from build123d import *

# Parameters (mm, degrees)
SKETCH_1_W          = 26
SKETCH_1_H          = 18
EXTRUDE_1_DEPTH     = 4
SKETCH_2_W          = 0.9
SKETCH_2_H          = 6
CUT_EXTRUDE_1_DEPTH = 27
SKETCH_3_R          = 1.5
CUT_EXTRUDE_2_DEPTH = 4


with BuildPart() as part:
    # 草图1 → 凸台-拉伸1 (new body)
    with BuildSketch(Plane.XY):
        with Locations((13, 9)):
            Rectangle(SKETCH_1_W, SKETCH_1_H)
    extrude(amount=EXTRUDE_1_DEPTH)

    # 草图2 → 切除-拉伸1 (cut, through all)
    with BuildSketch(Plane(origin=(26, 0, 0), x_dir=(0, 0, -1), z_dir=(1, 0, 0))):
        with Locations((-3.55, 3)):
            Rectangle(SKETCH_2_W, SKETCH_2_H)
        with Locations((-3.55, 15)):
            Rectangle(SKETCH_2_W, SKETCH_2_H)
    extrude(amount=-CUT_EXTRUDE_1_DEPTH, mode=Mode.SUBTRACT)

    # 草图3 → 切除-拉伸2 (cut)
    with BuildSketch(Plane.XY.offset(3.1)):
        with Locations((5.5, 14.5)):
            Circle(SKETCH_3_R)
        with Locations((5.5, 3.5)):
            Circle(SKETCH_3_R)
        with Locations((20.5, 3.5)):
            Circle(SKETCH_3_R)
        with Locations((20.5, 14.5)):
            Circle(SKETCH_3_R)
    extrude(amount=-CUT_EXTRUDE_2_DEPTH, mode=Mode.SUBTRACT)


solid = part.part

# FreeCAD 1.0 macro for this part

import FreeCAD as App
import Part
import Sketcher


def add_polygon(sketch, points):
    """Adds a closed chain of lines whose ends are joined by coincident constraints."""
    first, n = sketch.GeometryCount, len(points)
    for a, b in zip(points, points[1:] + points[:1]):
        sketch.addGeometry(Part.LineSegment(App.Vector(*a, 0), App.Vector(*b, 0)), False)
    for i in range(n):
        sketch.addConstraint(Sketcher.Constraint("Coincident", first + i, 2, first + (i + 1) % n, 1))

doc = App.newDocument("Part")
body = doc.addObject("PartDesign::Body", "Body")

sketch1 = body.newObject("Sketcher::SketchObject", "Sketch")
sketch1.AttachmentSupport = (doc.getObject("XY_Plane"), [""])
sketch1.MapMode = "FlatFace"
add_polygon(sketch1, [(0, 18), (0, 0), (26, 0), (26, 18)])
sketch1.addConstraint([
    Sketcher.Constraint("Vertical", 0),
    Sketcher.Constraint("Horizontal", 1),
    Sketcher.Constraint("Vertical", 2),
    Sketcher.Constraint("Horizontal", 3),
    Sketcher.Constraint("Coincident", 0, 2, -1, 1),
    Sketcher.Constraint("DistanceX", 1, 1, 1, 2, 26.0),
    Sketcher.Constraint("DistanceY", 0, 2, 0, 1, 18.0),
])
pad1 = body.newObject("PartDesign::Pad", "Pad")
pad1.Profile = sketch1
pad1.Length = 4

sketch2 = body.newObject("Sketcher::SketchObject", "Sketch001")
sketch2.AttachmentSupport = (doc.getObject("YZ_Plane"), [""])
sketch2.MapMode = "FlatFace"
sketch2.AttachmentOffset = App.Placement(App.Vector(0, 0, 26), App.Rotation())
add_polygon(sketch2, [(6, 4), (0, 4), (0, 3.1), (6, 3.1)])
add_polygon(sketch2, [(18, 4), (12, 4), (12, 3.1), (18, 3.1)])
sketch2.addConstraint([
    Sketcher.Constraint("Horizontal", 0),
    Sketcher.Constraint("Vertical", 1),
    Sketcher.Constraint("Horizontal", 2),
    Sketcher.Constraint("Vertical", 3),
    Sketcher.Constraint("Horizontal", 4),
    Sketcher.Constraint("Vertical", 5),
    Sketcher.Constraint("Horizontal", 6),
    Sketcher.Constraint("Vertical", 7),
    Sketcher.Constraint("PointOnObject", 0, 2, -2),
    Sketcher.Constraint("Horizontal", 3, 2, 4, 2),
    Sketcher.Constraint("Horizontal", 2, 2, 5, 2),
    Sketcher.Constraint("Equal", 2, 4),
    Sketcher.Constraint("DistanceX", 0, 2, 0, 1, 6.0),
    Sketcher.Constraint("DistanceY", 1, 2, 1, 1, 0.9),
    Sketcher.Constraint("DistanceY", -1, 1, 0, 2, 4.0),
    Sketcher.Constraint("DistanceX", -1, 1, 4, 2, 12.0),
])
pocket1 = body.newObject("PartDesign::Pocket", "Pocket")
pocket1.Profile = sketch2
pocket1.Type = "ThroughAll"

sketch3 = body.newObject("Sketcher::SketchObject", "Sketch002")
sketch3.AttachmentSupport = (doc.getObject("XY_Plane"), [""])
sketch3.MapMode = "FlatFace"
sketch3.AttachmentOffset = App.Placement(App.Vector(0, 0, 3.1), App.Rotation())
sketch3.addGeometry([
    Part.Circle(App.Vector(5.5, 14.5, 0), App.Vector(0, 0, 1), 1.5),
    Part.Circle(App.Vector(5.5, 3.5, 0), App.Vector(0, 0, 1), 1.5),
    Part.Circle(App.Vector(20.5, 3.5, 0), App.Vector(0, 0, 1), 1.5),
    Part.Circle(App.Vector(20.5, 14.5, 0), App.Vector(0, 0, 1), 1.5),
], False)
sketch3.addConstraint([
    Sketcher.Constraint("Equal", 0, 1),
    Sketcher.Constraint("Equal", 1, 2),
    Sketcher.Constraint("Equal", 2, 3),
    Sketcher.Constraint("Horizontal", 1, 3, 2, 3),
    Sketcher.Constraint("Horizontal", 0, 3, 3, 3),
    Sketcher.Constraint("Vertical", 0, 3, 1, 3),
    Sketcher.Constraint("Vertical", 2, 3, 3, 3),
    Sketcher.Constraint("Diameter", 0, 3.0),
    Sketcher.Constraint("DistanceY", 1, 3, 0, 3, 11.0),
    Sketcher.Constraint("DistanceX", 1, 3, 2, 3, 15.0),
    Sketcher.Constraint("DistanceX", -1, 1, 0, 3, 5.5),
    Sketcher.Constraint("DistanceY", -1, 1, 0, 3, 14.5),
])
pocket2 = body.newObject("PartDesign::Pocket", "Pocket001")
pocket2.Profile = sketch3
pocket2.Length = 4

doc.recompute()
